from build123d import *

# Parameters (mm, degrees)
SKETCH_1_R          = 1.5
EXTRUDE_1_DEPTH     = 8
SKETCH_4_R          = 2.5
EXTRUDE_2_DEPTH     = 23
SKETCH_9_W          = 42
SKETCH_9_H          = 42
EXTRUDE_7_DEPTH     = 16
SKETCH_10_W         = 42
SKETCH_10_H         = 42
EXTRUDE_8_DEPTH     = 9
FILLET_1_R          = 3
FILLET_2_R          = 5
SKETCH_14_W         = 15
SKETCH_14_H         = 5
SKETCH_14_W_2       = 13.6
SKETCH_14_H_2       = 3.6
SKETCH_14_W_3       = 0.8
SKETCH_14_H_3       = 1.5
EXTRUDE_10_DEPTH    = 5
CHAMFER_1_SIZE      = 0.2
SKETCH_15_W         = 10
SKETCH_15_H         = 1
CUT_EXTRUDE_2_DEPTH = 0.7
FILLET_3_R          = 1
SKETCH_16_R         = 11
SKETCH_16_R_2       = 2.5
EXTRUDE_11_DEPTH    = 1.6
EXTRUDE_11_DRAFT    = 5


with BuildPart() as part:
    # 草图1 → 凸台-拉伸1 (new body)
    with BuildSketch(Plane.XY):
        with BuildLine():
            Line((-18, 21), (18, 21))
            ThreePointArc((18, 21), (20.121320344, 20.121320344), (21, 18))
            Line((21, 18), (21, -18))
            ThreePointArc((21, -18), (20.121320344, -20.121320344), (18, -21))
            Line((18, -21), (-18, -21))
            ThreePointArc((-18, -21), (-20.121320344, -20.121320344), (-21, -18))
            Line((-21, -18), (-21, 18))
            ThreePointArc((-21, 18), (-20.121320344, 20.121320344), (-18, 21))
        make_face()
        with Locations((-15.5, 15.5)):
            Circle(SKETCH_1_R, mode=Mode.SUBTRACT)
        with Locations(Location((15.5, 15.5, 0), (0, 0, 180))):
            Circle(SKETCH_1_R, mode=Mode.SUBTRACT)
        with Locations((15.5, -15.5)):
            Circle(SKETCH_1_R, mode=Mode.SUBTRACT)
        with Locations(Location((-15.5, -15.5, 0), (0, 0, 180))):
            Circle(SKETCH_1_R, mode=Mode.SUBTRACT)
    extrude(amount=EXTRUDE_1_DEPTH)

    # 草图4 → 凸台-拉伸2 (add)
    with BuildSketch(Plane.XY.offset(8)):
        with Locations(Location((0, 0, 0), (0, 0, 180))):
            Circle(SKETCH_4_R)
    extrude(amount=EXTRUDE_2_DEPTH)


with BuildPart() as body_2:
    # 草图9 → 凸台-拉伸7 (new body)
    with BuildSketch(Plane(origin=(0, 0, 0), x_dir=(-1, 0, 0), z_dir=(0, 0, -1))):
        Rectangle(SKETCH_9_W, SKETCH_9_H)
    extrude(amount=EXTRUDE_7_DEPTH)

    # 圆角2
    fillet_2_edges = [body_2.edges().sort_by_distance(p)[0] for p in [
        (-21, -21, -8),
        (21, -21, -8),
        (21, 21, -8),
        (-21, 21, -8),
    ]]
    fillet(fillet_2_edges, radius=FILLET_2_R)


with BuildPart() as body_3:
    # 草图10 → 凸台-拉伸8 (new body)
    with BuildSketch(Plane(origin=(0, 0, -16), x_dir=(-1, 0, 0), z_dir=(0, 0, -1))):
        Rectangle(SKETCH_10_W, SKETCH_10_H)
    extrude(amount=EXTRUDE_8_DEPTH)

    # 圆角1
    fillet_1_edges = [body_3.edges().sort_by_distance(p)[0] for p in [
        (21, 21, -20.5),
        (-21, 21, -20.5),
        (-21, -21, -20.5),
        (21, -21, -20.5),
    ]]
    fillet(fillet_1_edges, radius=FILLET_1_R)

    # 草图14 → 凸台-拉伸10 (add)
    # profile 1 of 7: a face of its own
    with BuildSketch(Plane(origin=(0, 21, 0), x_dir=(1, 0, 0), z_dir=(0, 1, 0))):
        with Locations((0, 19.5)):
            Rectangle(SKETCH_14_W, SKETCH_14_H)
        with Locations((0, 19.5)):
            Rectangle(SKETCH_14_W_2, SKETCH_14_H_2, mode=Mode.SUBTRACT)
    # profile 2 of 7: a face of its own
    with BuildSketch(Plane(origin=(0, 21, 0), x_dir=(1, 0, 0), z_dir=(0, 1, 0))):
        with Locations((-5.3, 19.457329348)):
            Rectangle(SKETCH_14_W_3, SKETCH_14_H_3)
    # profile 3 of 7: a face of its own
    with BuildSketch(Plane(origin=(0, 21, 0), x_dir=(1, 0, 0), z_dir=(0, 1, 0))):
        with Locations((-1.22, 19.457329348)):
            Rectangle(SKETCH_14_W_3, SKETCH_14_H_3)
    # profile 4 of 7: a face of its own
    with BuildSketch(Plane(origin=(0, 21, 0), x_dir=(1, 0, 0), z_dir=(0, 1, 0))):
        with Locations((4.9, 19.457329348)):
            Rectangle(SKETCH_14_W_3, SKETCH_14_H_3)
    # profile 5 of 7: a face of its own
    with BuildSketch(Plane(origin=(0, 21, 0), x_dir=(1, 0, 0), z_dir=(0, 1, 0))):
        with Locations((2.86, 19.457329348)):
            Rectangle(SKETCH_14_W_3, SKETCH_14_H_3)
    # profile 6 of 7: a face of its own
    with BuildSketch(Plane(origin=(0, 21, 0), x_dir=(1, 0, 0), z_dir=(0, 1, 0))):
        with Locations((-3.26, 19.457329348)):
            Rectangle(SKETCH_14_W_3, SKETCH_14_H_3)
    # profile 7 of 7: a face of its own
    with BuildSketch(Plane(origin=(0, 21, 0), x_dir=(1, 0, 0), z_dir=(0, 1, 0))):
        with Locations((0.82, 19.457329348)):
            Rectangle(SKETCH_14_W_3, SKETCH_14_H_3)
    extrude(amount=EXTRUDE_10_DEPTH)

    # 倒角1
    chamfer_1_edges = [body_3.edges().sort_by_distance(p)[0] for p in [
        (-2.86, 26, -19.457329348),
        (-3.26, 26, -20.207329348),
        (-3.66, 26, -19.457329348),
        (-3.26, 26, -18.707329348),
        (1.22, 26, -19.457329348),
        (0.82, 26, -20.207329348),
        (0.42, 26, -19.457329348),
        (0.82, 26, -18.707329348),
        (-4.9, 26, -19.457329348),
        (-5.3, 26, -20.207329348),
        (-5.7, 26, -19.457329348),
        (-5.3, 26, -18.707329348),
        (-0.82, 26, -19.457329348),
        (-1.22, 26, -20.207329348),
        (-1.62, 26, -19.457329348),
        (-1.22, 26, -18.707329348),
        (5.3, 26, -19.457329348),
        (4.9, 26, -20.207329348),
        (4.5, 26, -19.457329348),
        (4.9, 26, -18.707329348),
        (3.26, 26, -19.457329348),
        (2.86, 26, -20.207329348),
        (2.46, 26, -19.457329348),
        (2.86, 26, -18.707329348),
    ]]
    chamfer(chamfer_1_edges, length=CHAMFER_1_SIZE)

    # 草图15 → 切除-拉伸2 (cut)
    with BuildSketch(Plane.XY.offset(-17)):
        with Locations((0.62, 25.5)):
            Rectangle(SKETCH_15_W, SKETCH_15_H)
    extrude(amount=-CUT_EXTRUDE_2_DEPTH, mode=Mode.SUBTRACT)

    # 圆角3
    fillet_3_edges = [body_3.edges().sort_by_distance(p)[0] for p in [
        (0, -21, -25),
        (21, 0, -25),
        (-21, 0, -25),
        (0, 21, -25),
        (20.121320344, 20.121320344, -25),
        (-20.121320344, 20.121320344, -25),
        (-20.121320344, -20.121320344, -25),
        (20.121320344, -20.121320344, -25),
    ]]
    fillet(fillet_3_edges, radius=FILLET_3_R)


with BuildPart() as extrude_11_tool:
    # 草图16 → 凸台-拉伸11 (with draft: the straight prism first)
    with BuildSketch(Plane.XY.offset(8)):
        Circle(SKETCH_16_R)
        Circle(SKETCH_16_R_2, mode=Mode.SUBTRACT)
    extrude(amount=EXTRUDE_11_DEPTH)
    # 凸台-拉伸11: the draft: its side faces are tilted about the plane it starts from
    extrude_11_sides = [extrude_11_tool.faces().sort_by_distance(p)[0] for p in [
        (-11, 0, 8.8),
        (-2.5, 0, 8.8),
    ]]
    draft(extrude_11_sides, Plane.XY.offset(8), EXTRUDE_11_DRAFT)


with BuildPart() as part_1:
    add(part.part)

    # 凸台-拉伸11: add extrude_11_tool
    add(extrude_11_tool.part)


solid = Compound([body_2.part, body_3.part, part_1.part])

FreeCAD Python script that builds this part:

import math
import FreeCAD as App
import Part
import Sketcher

V = App.Vector
Q = App.Units.Quantity


def edges_at(feature, points):
    """Names of the edges that pass closest to the given points."""
    edges = feature.Shape.Edges
    near = lambda p: min(range(len(edges)), key=lambda i: edges[i].distToShape(Part.Vertex(*p))[0])
    return sorted({f"Edge{near(p) + 1}" for p in points})


def faces_at(feature, points):
    """Names of the faces that lie closest to the given points."""
    faces = feature.Shape.Faces
    near = lambda p: min(range(len(faces)), key=lambda i: faces[i].distToShape(Part.Vertex(*p))[0])
    return sorted({f"Face{near(p) + 1}" for p in points})


def add_polygon(sketch, points):
    """Adds a closed chain of lines whose ends are joined by coincident constraints."""
    first, n = sketch.GeometryCount, len(points)
    for a, b in zip(points, points[1:] + points[:1]):
        sketch.addGeometry(Part.LineSegment(App.Vector(*a, 0), App.Vector(*b, 0)), False)
    for i in range(n):
        sketch.addConstraint(Sketcher.Constraint("Coincident", first + i, 2, first + (i + 1) % n, 1))

doc = App.newDocument("Part")
body = doc.addObject("PartDesign::Body", "Body")

sketch1 = body.newObject("Sketcher::SketchObject", "Sketch")
sketch1.AttachmentSupport = (doc.getObject("XY_Plane"), [""])
sketch1.MapMode = "FlatFace"
sketch1.addGeometry(Part.LineSegment(V(18, 21, 0), V(-18, 21, 0)), False)
sketch1.addGeometry(Part.ArcOfCircle(Part.Circle(V(-18, 18, 0), V(0, 0, 1), 3), math.radians(90), math.radians(180)), False)
sketch1.addGeometry(Part.LineSegment(V(-21, 18, 0), V(-21, -18, 0)), False)
sketch1.addGeometry(Part.ArcOfCircle(Part.Circle(V(-18, -18, 0), V(0, 0, 1), 3), math.radians(180), math.radians(270)), False)
sketch1.addGeometry(Part.LineSegment(V(-18, -21, 0), V(18, -21, 0)), False)
sketch1.addGeometry(Part.ArcOfCircle(Part.Circle(V(18, -18, 0), V(0, 0, 1), 3), math.radians(-90), math.radians(0)), False)
sketch1.addGeometry(Part.LineSegment(V(21, -18, 0), V(21, 18, 0)), False)
sketch1.addGeometry(Part.ArcOfCircle(Part.Circle(V(18, 18, 0), V(0, 0, 1), 3), math.radians(0), math.radians(90)), False)
sketch1.addGeometry(Part.Circle(V(15.5, -15.5, 0), V(0, 0, 1), 1.5), False)
sketch1.addGeometry(Part.Circle(V(-15.5, -15.5, 0), V(0, 0, 1), 1.5), False)
sketch1.addGeometry(Part.Circle(V(15.5, 15.5, 0), V(0, 0, 1), 1.5), False)
sketch1.addGeometry(Part.Circle(V(-15.5, 15.5, 0), V(0, 0, 1), 1.5), False)
sketch1.addConstraint(Sketcher.Constraint("Tangent", 0, 2, 1, 1))
sketch1.addConstraint(Sketcher.Constraint("Tangent", 1, 2, 2, 1))
sketch1.addConstraint(Sketcher.Constraint("Tangent", 2, 2, 3, 1))
sketch1.addConstraint(Sketcher.Constraint("Tangent", 3, 2, 4, 1))
sketch1.addConstraint(Sketcher.Constraint("Tangent", 4, 2, 5, 1))
sketch1.addConstraint(Sketcher.Constraint("Tangent", 5, 2, 6, 1))
sketch1.addConstraint(Sketcher.Constraint("Tangent", 6, 2, 7, 1))
sketch1.addConstraint(Sketcher.Constraint("Tangent", 7, 2, 0, 1))
sketch1.addConstraint(Sketcher.Constraint("Horizontal", 0))
sketch1.addConstraint(Sketcher.Constraint("Vertical", 2))
sketch1.addConstraint(Sketcher.Constraint("Horizontal", 4))
sketch1.addConstraint(Sketcher.Constraint("Vertical", 6))
sketch1.addConstraint(Sketcher.Constraint("Equal", 1, 3))
sketch1.addConstraint(Sketcher.Constraint("Equal", 3, 5))
sketch1.addConstraint(Sketcher.Constraint("Equal", 5, 7))
sketch1.addConstraint(Sketcher.Constraint("Equal", 8, 9))
sketch1.addConstraint(Sketcher.Constraint("Equal", 9, 10))
sketch1.addConstraint(Sketcher.Constraint("Equal", 10, 11))
sketch1.addConstraint(Sketcher.Constraint("Symmetric", 1, 3, 5, 3, -1, 1))
sketch1.addConstraint(Sketcher.Constraint("Symmetric", 9, 3, 10, 3, -1, 1))
sketch1.addConstraint(Sketcher.Constraint("Symmetric", 8, 3, 11, 3, -1, 1))
sketch1.addConstraint(Sketcher.Constraint("Symmetric", 8, 3, 9, 3, -2))
sketch1.addConstraint(Sketcher.Constraint("Equal", 4, 2))
sketch1.addConstraint(Sketcher.Constraint("Diameter", 8, Q("3 mm")))
sketch1.addConstraint(Sketcher.Constraint("Radius", 1, Q("3 mm")))
sketch1.addConstraint(Sketcher.Constraint("DistanceX", 0, 2, 0, 1, Q("36 mm")))
sketch1.addConstraint(Sketcher.Constraint("DistanceX", 9, 3, 8, 3, Q("31 mm")))
sketch1.addConstraint(Sketcher.Constraint("DistanceY", 8, 3, 10, 3, Q("31 mm")))
pad1 = body.newObject("PartDesign::Pad", "Pad")
pad1.Profile = sketch1
pad1.Length = 8

sketch2 = body.newObject("Sketcher::SketchObject", "Sketch001")
sketch2.AttachmentSupport = (doc.getObject("XY_Plane"), [""])
sketch2.MapMode = "FlatFace"
sketch2.AttachmentOffset = App.Placement(V(0, 0, 8), App.Rotation())
sketch2.addGeometry(Part.Circle(V(0, 0, 0), V(0, 0, 1), 2.5), False)
sketch2.addConstraint(Sketcher.Constraint("Coincident", 0, 3, -1, 1))
sketch2.addConstraint(Sketcher.Constraint("Diameter", 0, Q("5 mm")))
pad2 = body.newObject("PartDesign::Pad", "Pad001")
pad2.Profile = sketch2
pad2.Length = 23
body2 = doc.addObject("PartDesign::Body", "Body001")

sketch3 = body2.newObject("Sketcher::SketchObject", "Sketch002")
sketch3.AttachmentSupport = (doc.getObject("XY_Plane001"), [""])
sketch3.MapMode = "FlatFace"
add_polygon(sketch3, [(21, 21), (21, -21), (-21, -21), (-21, 21)])
sketch3.addConstraint(Sketcher.Constraint("Vertical", 0))
sketch3.addConstraint(Sketcher.Constraint("Horizontal", 1))
sketch3.addConstraint(Sketcher.Constraint("Vertical", 2))
sketch3.addConstraint(Sketcher.Constraint("Horizontal", 3))
sketch3.addConstraint(Sketcher.Constraint("Symmetric", 0, 2, 2, 2, -1, 1))
sketch3.addConstraint(Sketcher.Constraint("Equal", 3, 0))
sketch3.addConstraint(Sketcher.Constraint("DistanceX", 1, 2, 1, 1, Q("42 mm")))
pad3 = body2.newObject("PartDesign::Pad", "Pad002")
pad3.Profile = sketch3
pad3.Length = 16
pad3.Reversed = True
doc.recompute()

fillet = body2.newObject("PartDesign::Fillet", "Fillet")
fillet.Base = (pad3, edges_at(pad3, [
    (-21, -21, -8),
    (21, -21, -8),
    (21, 21, -8),
    (-21, 21, -8),
]))
fillet.Radius = 5
body3 = doc.addObject("PartDesign::Body", "Body002")

sketch4 = body3.newObject("Sketcher::SketchObject", "Sketch003")
sketch4.AttachmentSupport = (doc.getObject("XY_Plane002"), [""])
sketch4.MapMode = "FlatFace"
sketch4.AttachmentOffset = App.Placement(V(0, 0, -16), App.Rotation())
add_polygon(sketch4, [(21, 21), (21, -21), (-21, -21), (-21, 21)])
sketch4.addConstraint(Sketcher.Constraint("Vertical", 0))
sketch4.addConstraint(Sketcher.Constraint("Horizontal", 1))
sketch4.addConstraint(Sketcher.Constraint("Vertical", 2))
sketch4.addConstraint(Sketcher.Constraint("Horizontal", 3))
sketch4.addConstraint(Sketcher.Constraint("Symmetric", 0, 2, 2, 2, -1, 1))
sketch4.addConstraint(Sketcher.Constraint("Equal", 3, 0))
sketch4.addConstraint(Sketcher.Constraint("DistanceX", 1, 2, 1, 1, Q("42 mm")))
pad4 = body3.newObject("PartDesign::Pad", "Pad003")
pad4.Profile = sketch4
pad4.Length = 9
pad4.Reversed = True
doc.recompute()

fillet2 = body3.newObject("PartDesign::Fillet", "Fillet001")
fillet2.Base = (pad4, edges_at(pad4, [
    (21, 21, -20.5),
    (-21, 21, -20.5),
    (-21, -21, -20.5),
    (21, -21, -20.5),
]))
fillet2.Radius = 3

sketch5 = body3.newObject("Sketcher::SketchObject", "Sketch004")
sketch5.AttachmentSupport = (doc.getObject("XZ_Plane002"), [""])
sketch5.MapMode = "FlatFace"
sketch5.AttachmentOffset = App.Placement(V(0, 0, -21), App.Rotation())
add_polygon(sketch5, [(-7.5, -22), (-7.5, -17), (7.5, -17), (7.5, -22)])
add_polygon(sketch5, [(6.8, -17.7), (-6.8, -17.7), (-6.8, -21.3), (6.8, -21.3)])
add_polygon(sketch5, [(-5.7, -20.207329), (-5.7, -18.707329), (-4.9, -18.707329), (-4.9, -20.207329)])
add_polygon(sketch5, [(-1.62, -20.207329), (-1.62, -18.707329), (-0.82, -18.707329), (-0.82, -20.207329)])
add_polygon(sketch5, [(4.5, -20.207329), (4.5, -18.707329), (5.3, -18.707329), (5.3, -20.207329)])
add_polygon(sketch5, [(2.46, -20.207329), (2.46, -18.707329), (3.26, -18.707329), (3.26, -20.207329)])
add_polygon(sketch5, [(-3.66, -20.207329), (-3.66, -18.707329), (-2.86, -18.707329), (-2.86, -20.207329)])
add_polygon(sketch5, [(0.42, -20.207329), (0.42, -18.707329), (1.22, -18.707329), (1.22, -20.207329)])
sketch5.addConstraint(Sketcher.Constraint("Vertical", 0))
sketch5.addConstraint(Sketcher.Constraint("Horizontal", 1))
sketch5.addConstraint(Sketcher.Constraint("Vertical", 2))
sketch5.addConstraint(Sketcher.Constraint("Horizontal", 3))
sketch5.addConstraint(Sketcher.Constraint("Horizontal", 4))
sketch5.addConstraint(Sketcher.Constraint("Vertical", 5))
sketch5.addConstraint(Sketcher.Constraint("Horizontal", 6))
sketch5.addConstraint(Sketcher.Constraint("Vertical", 7))
sketch5.addConstraint(Sketcher.Constraint("Vertical", 8))
sketch5.addConstraint(Sketcher.Constraint("Horizontal", 9))
sketch5.addConstraint(Sketcher.Constraint("Vertical", 10))
sketch5.addConstraint(Sketcher.Constraint("Horizontal", 11))
sketch5.addConstraint(Sketcher.Constraint("Vertical", 12))
sketch5.addConstraint(Sketcher.Constraint("Horizontal", 13))
sketch5.addConstraint(Sketcher.Constraint("Vertical", 14))
sketch5.addConstraint(Sketcher.Constraint("Horizontal", 15))
sketch5.addConstraint(Sketcher.Constraint("Vertical", 16))
sketch5.addConstraint(Sketcher.Constraint("Horizontal", 17))
sketch5.addConstraint(Sketcher.Constraint("Vertical", 18))
sketch5.addConstraint(Sketcher.Constraint("Horizontal", 19))
sketch5.addConstraint(Sketcher.Constraint("Vertical", 20))
sketch5.addConstraint(Sketcher.Constraint("Horizontal", 21))
sketch5.addConstraint(Sketcher.Constraint("Vertical", 22))
sketch5.addConstraint(Sketcher.Constraint("Horizontal", 23))
sketch5.addConstraint(Sketcher.Constraint("Vertical", 24))
sketch5.addConstraint(Sketcher.Constraint("Horizontal", 25))
sketch5.addConstraint(Sketcher.Constraint("Vertical", 26))
sketch5.addConstraint(Sketcher.Constraint("Horizontal", 27))
sketch5.addConstraint(Sketcher.Constraint("Vertical", 28))
sketch5.addConstraint(Sketcher.Constraint("Horizontal", 29))
sketch5.addConstraint(Sketcher.Constraint("Vertical", 30))
sketch5.addConstraint(Sketcher.Constraint("Horizontal", 31))
sketch5.addConstraint(Sketcher.Constraint("Horizontal", 9, 2, 12, 2))
sketch5.addConstraint(Sketcher.Constraint("Horizontal", 11, 2, 14, 2))
sketch5.addConstraint(Sketcher.Constraint("Horizontal", 13, 2, 16, 2))
sketch5.addConstraint(Sketcher.Constraint("Horizontal", 15, 2, 18, 2))
sketch5.addConstraint(Sketcher.Constraint("Horizontal", 17, 2, 20, 2))
sketch5.addConstraint(Sketcher.Constraint("Horizontal", 19, 2, 22, 2))
sketch5.addConstraint(Sketcher.Constraint("Horizontal", 21, 2, 24, 2))
sketch5.addConstraint(Sketcher.Constraint("Horizontal", 23, 2, 26, 2))
sketch5.addConstraint(Sketcher.Constraint("Horizontal", 25, 2, 28, 2))
sketch5.addConstraint(Sketcher.Constraint("Horizontal", 27, 2, 30, 2))
sketch5.addConstraint(Sketcher.Constraint("Equal", 11, 13))
sketch5.addConstraint(Sketcher.Constraint("Equal", 15, 17))
sketch5.addConstraint(Sketcher.Constraint("Equal", 19, 21))
sketch5.addConstraint(Sketcher.Constraint("Equal", 23, 25))
sketch5.addConstraint(Sketcher.Constraint("Equal", 27, 29))
sketch5.addConstraint(Sketcher.Constraint("DistanceX", 1, 1, 1, 2, Q("15 mm")))
sketch5.addConstraint(Sketcher.Constraint("DistanceY", 0, 1, 0, 2, Q("5 mm")))
sketch5.addConstraint(Sketcher.Constraint("DistanceX", 4, 2, 4, 1, Q("13.6 mm")))
sketch5.addConstraint(Sketcher.Constraint("DistanceX", 9, 1, 9, 2, Q("0.8 mm")))
sketch5.addConstraint(Sketcher.Constraint("DistanceY", 5, 2, 5, 1, Q("3.6 mm")))
sketch5.addConstraint(Sketcher.Constraint("DistanceY", 8, 1, 8, 2, Q("1.5 mm")))
sketch5.addConstraint(Sketcher.Constraint("DistanceY", 0, 2, -1, 1, Q("17 mm")))
sketch5.addConstraint(Sketcher.Constraint("DistanceX", 16, 2, 1, 2, Q("3 mm")))
sketch5.addConstraint(Sketcher.Constraint("DistanceX", 0, 2, -1, 1, Q("7.5 mm")))
sketch5.addConstraint(Sketcher.Constraint("DistanceX", 4, 2, -1, 1, Q("6.8 mm")))
sketch5.addConstraint(Sketcher.Constraint("DistanceY", 4, 2, -1, 1, Q("17.7 mm")))
sketch5.addConstraint(Sketcher.Constraint("DistanceX", 8, 2, -1, 1, Q("5.7 mm")))
sketch5.addConstraint(Sketcher.Constraint("DistanceX", 12, 2, -1, 1, Q("1.62 mm")))
sketch5.addConstraint(Sketcher.Constraint("DistanceX", -1, 1, 20, 2, Q("2.46 mm")))
sketch5.addConstraint(Sketcher.Constraint("DistanceX", 24, 2, -1, 1, Q("3.66 mm")))
sketch5.addConstraint(Sketcher.Constraint("DistanceX", -1, 1, 28, 2, Q("0.42 mm")))
sketch5.addConstraint(Sketcher.Constraint("DistanceY", 8, 2, -1, 1, Q("18.707329 mm")))
pad5 = body3.newObject("PartDesign::Pad", "Pad004")
pad5.Profile = sketch5
pad5.Length = 5
pad5.Reversed = True
doc.recompute()

chamfer = body3.newObject("PartDesign::Chamfer", "Chamfer")
chamfer.Base = (pad5, edges_at(pad5, [
    (-2.86, 26, -19.457),
    (-3.26, 26, -20.207),
    (-3.66, 26, -19.457),
    (-3.26, 26, -18.707),
    (1.22, 26, -19.457),
    (0.82, 26, -20.207),
    (0.42, 26, -19.457),
    (0.82, 26, -18.707),
    (-4.9, 26, -19.457),
    (-5.3, 26, -20.207),
    (-5.7, 26, -19.457),
    (-5.3, 26, -18.707),
    (-0.82, 26, -19.457),
    (-1.22, 26, -20.207),
    (-1.62, 26, -19.457),
    (-1.22, 26, -18.707),
    (5.3, 26, -19.457),
    (4.9, 26, -20.207),
    (4.5, 26, -19.457),
    (4.9, 26, -18.707),
    (3.26, 26, -19.457),
    (2.86, 26, -20.207),
    (2.46, 26, -19.457),
    (2.86, 26, -18.707),
]))
chamfer.Size = 0.2

sketch6 = body3.newObject("Sketcher::SketchObject", "Sketch005")
sketch6.AttachmentSupport = (doc.getObject("XY_Plane002"), [""])
sketch6.MapMode = "FlatFace"
sketch6.AttachmentOffset = App.Placement(V(0, 0, -17), App.Rotation())
add_polygon(sketch6, [(-4.38, 26), (-4.38, 25), (5.62, 25), (5.62, 26)])
sketch6.addConstraint(Sketcher.Constraint("Vertical", 0))
sketch6.addConstraint(Sketcher.Constraint("Horizontal", 1))
sketch6.addConstraint(Sketcher.Constraint("Vertical", 2))
sketch6.addConstraint(Sketcher.Constraint("Horizontal", 3))
sketch6.addConstraint(Sketcher.Constraint("DistanceX", 1, 1, 1, 2, Q("10 mm")))
sketch6.addConstraint(Sketcher.Constraint("DistanceY", 0, 2, 0, 1, Q("1 mm")))
sketch6.addConstraint(Sketcher.Constraint("DistanceY", -1, 1, 0, 2, Q("25 mm")))
sketch6.addConstraint(Sketcher.Constraint("DistanceX", 0, 2, -1, 1, Q("4.38 mm")))
pocket1 = body3.newObject("PartDesign::Pocket", "Pocket")
pocket1.Profile = sketch6
pocket1.Length = 0.7
doc.recompute()

fillet3 = body3.newObject("PartDesign::Fillet", "Fillet002")
fillet3.Base = (pocket1, edges_at(pocket1, [
    (0, -21, -25),
    (21, 0, -25),
    (-21, 0, -25),
    (0, 21, -25),
    (20.121, 20.121, -25),
    (-20.121, 20.121, -25),
    (-20.121, -20.121, -25),
    (20.121, -20.121, -25),
]))
fillet3.Radius = 1
body4 = doc.addObject("PartDesign::Body", "Body003")

sketch7 = body4.newObject("Sketcher::SketchObject", "Sketch006")
sketch7.AttachmentSupport = (doc.getObject("XY_Plane003"), [""])
sketch7.MapMode = "FlatFace"
sketch7.AttachmentOffset = App.Placement(V(0, 0, 8), App.Rotation())
sketch7.addGeometry(Part.Circle(V(0, 0, 0), V(0, 0, 1), 11), False)
sketch7.addGeometry(Part.Circle(V(0, 0, 0), V(0, 0, 1), 2.5), False)
sketch7.addConstraint(Sketcher.Constraint("Coincident", 0, 3, -1, 1))
sketch7.addConstraint(Sketcher.Constraint("Coincident", 1, 3, -1, 1))
sketch7.addConstraint(Sketcher.Constraint("Diameter", 0, Q("22 mm")))
sketch7.addConstraint(Sketcher.Constraint("Diameter", 1, Q("5 mm")))
pad6 = body4.newObject("PartDesign::Pad", "Pad005")
pad6.Profile = sketch7
pad6.Length = 1.6
doc.recompute()

datumplane = body4.newObject("PartDesign::Plane", "DatumPlane")
datumplane.AttachmentSupport = (doc.getObject("XY_Plane003"), [""])
datumplane.MapMode = "FlatFace"
datumplane.AttachmentOffset = App.Placement(V(0, 0, 8), App.Rotation())
draft = body4.newObject("PartDesign::Draft", "Draft")
draft.Base = (pad6, faces_at(pad6, [(-11, 0, 8.8), (-2.5, 0, 8.8)]))
draft.NeutralPlane = (datumplane, [""])
draft.Angle = 5
draft.Reversed = False
doc.recompute()

boolean = body.newObject("PartDesign::Boolean", "Boolean")
boolean.Type = "Fuse"
boolean.addObjects([body4])

doc.recompute()
